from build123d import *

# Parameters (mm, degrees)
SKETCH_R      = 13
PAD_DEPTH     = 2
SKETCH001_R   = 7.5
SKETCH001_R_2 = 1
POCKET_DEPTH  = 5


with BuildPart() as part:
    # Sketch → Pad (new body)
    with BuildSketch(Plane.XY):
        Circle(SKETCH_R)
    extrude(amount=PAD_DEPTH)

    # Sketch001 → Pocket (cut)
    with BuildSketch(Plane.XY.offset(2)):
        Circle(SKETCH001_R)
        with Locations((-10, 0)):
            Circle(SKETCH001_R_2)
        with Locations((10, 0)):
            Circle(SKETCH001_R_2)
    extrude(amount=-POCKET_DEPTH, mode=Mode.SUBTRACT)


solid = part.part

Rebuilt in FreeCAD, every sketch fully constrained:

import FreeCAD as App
import Part
import Sketcher
Q = App.Units.Quantity

doc = App.newDocument("Part")
body = doc.addObject("PartDesign::Body", "Body")

# Sketch on XY plane
sketch1 = body.newObject("Sketcher::SketchObject", "Sketch")
sketch1.AttachmentSupport = (doc.getObject("XY_Plane"), [""])
sketch1.MapMode = "FlatFace"
sketch1.addGeometry(Part.Circle(App.Vector(0, 0, 0), App.Vector(0, 0, 1), 13), False)
sketch1.addConstraint(Sketcher.Constraint("Coincident", 0, 3, -1, 1))
sketch1.addConstraint(Sketcher.Constraint("Diameter", 0, Q("26 mm")))
pad1 = body.newObject("PartDesign::Pad", "Pad")
pad1.Profile = sketch1
pad1.Length = 2

# Sketch on XY plane
sketch2 = body.newObject("Sketcher::SketchObject", "Sketch001")
sketch2.AttachmentSupport = (doc.getObject("XY_Plane"), [""])
sketch2.MapMode = "FlatFace"
sketch2.AttachmentOffset = App.Placement(App.Vector(0, 0, 2), App.Rotation())
sketch2.addGeometry(Part.Circle(App.Vector(0, 0, 0), App.Vector(0, 0, 1), 7.5), False)
sketch2.addGeometry(Part.Circle(App.Vector(-10, 0, 0), App.Vector(0, 0, 1), 1), False)
sketch2.addGeometry(Part.Circle(App.Vector(10, 0, 0), App.Vector(0, 0, 1), 1), False)
sketch2.addConstraint(Sketcher.Constraint("Coincident", 0, 3, -1, 1))
sketch2.addConstraint(Sketcher.Constraint("Equal", 1, 2))
sketch2.addConstraint(Sketcher.Constraint("Symmetric", 1, 3, 2, 3, -1, 1))
sketch2.addConstraint(Sketcher.Constraint("PointOnObject", 1, 3, -1))
sketch2.addConstraint(Sketcher.Constraint("Diameter", 0, Q("15 mm")))
sketch2.addConstraint(Sketcher.Constraint("Diameter", 1, Q("2 mm")))
sketch2.addConstraint(Sketcher.Constraint("DistanceX", 1, 3, -1, 1, Q("10 mm")))
pocket1 = body.newObject("PartDesign::Pocket", "Pocket")
pocket1.Profile = sketch2
pocket1.Length = 5

doc.recompute()
